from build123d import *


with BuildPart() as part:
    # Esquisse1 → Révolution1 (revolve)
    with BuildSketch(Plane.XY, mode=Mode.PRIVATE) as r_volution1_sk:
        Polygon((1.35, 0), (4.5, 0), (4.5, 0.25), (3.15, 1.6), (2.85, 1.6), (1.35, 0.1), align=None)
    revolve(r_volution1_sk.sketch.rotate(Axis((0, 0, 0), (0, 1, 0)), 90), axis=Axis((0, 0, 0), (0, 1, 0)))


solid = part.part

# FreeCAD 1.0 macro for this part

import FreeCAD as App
import Part
import Sketcher
from FreeCAD import Vector
Q = App.Units.Quantity


def add_polygon(sketch, points):
    """Adds a closed chain of lines whose ends are joined by coincident constraints."""
    first, n = sketch.GeometryCount, len(points)
    for a, b in zip(points, points[1:] + points[:1]):
        sketch.addGeometry(Part.LineSegment(App.Vector(*a, 0), App.Vector(*b, 0)), False)
    for i in range(n):
        sketch.addConstraint(Sketcher.Constraint("Coincident", first + i, 2, first + (i + 1) % n, 1))

doc = App.newDocument("Part")
body = doc.addObject("PartDesign::Body", "Body")

sketch1 = doc.addObject("Sketcher::SketchObject", "Sketch")
body.addObject(sketch1)
sketch1.AttachmentSupport = (doc.XY_Plane, [""])
sketch1.MapMode = "FlatFace"
add_polygon(sketch1, [(1.35, 0), (4.5, 0), (4.5, 0.25), (3.15, 1.6), (2.85, 1.6), (1.35, 0.1)])
sketch1.addConstraint([
    Sketcher.Constraint("Horizontal", 0),
    Sketcher.Constraint("Vertical", 1),
    Sketcher.Constraint("Horizontal", 3),
    Sketcher.Constraint("Vertical", 5),
    Sketcher.Constraint("PointOnObject", 0, 2, -1),
    Sketcher.Constraint("Perpendicular", 2, 4),
    Sketcher.Constraint("Angle", 2, Q("135 deg")),
    Sketcher.Constraint("DistanceX", 3, 2, 3, 1, Q("0.3 mm")),
    Sketcher.Constraint("DistanceY", 5, 2, 5, 1, Q("0.1 mm")),
    Sketcher.Constraint("DistanceX", 0, 1, 0, 2, Q("3.15 mm")),
    Sketcher.Constraint("DistanceY", 1, 1, 1, 2, Q("0.25 mm")),
    Sketcher.Constraint("DistanceX", -1, 1, 0, 2, Q("4.5 mm")),
])
revolution = doc.addObject("PartDesign::Revolution", "Revolution")
body.addObject(revolution)
revolution.Profile = sketch1
revolution.ReferenceAxis = (sketch1, ["V_Axis"])
revolution.Angle = 360

doc.recompute()
